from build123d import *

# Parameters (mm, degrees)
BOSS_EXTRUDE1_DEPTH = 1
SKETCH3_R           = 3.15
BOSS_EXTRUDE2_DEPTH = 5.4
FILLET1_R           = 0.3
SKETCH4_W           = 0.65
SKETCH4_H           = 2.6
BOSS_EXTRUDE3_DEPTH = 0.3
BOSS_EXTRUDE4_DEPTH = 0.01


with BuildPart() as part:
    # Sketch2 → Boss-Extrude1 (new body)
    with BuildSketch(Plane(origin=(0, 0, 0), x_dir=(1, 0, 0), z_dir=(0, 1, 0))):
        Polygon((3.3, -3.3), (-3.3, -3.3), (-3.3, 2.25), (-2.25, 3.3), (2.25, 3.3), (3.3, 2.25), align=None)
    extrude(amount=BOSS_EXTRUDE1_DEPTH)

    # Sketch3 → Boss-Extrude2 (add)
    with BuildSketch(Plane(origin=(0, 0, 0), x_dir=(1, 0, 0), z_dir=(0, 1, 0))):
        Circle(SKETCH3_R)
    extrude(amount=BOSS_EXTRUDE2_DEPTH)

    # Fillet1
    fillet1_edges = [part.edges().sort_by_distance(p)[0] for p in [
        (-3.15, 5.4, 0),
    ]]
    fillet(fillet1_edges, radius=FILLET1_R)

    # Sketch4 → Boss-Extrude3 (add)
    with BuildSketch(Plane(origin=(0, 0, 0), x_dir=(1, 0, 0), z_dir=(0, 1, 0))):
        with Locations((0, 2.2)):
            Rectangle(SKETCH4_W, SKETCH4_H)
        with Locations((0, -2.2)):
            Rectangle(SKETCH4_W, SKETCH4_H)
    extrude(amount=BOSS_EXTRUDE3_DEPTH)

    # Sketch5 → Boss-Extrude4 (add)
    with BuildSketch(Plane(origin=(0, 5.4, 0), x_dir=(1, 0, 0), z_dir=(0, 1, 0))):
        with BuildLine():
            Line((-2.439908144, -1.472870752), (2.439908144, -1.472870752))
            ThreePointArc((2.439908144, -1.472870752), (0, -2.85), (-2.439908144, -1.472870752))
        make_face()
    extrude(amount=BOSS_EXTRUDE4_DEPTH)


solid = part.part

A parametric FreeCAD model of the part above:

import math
import FreeCAD as App
import Part
import Sketcher
from FreeCAD import Vector
Q = App.Units.Quantity


def edges_at(feature, points):
    """Names of the edges that pass closest to the given points."""
    edges = feature.Shape.Edges
    near = lambda p: min(range(len(edges)), key=lambda i: edges[i].distToShape(Part.Vertex(*p))[0])
    return sorted({f"Edge{near(p) + 1}" for p in points})


def add_polygon(sketch, points):
    """Adds a closed chain of lines whose ends are joined by coincident constraints."""
    first, n = sketch.GeometryCount, len(points)
    for a, b in zip(points, points[1:] + points[:1]):
        sketch.addGeometry(Part.LineSegment(App.Vector(*a, 0), App.Vector(*b, 0)), False)
    for i in range(n):
        sketch.addConstraint(Sketcher.Constraint("Coincident", first + i, 2, first + (i + 1) % n, 1))

doc = App.newDocument("Part")
body = doc.addObject("PartDesign::Body", "Body")

# Sketch on XZ plane
sketch1 = body.newObject("Sketcher::SketchObject", "Sketch")
sketch1.AttachmentSupport = (doc.getObject("XZ_Plane"), [""])
sketch1.MapMode = "FlatFace"
add_polygon(sketch1, [(-3.3, 3.3), (3.3, 3.3), (3.3, -2.25), (2.25, -3.3), (-2.25, -3.3), (-3.3, -2.25)])  # lines 0-5
sketch1.addConstraint([
    Sketcher.Constraint("Horizontal", 0),
    Sketcher.Constraint("Vertical", 1),
    Sketcher.Constraint("Horizontal", 3),
    Sketcher.Constraint("Vertical", 5),
    Sketcher.Constraint("Symmetric", 1, 2, 4, 2, -2),
    Sketcher.Constraint("Perpendicular", 2, 4),
    Sketcher.Constraint("Equal", 2, 4),
    Sketcher.Constraint("DistanceX", 0, 1, 0, 2, Q("6.6 mm")),
    Sketcher.Constraint("DistanceX", 3, 2, 3, 1, Q("4.5 mm")),
    Sketcher.Constraint("DistanceY", 1, 2, 1, 1, Q("5.55 mm")),
    Sketcher.Constraint("DistanceY", -1, 1, 0, 2, Q("3.3 mm")),
])
pad1 = body.newObject("PartDesign::Pad", "Pad")
pad1.Profile = sketch1
pad1.Length = 1
pad1.Reversed = True

# Sketch on XZ plane
sketch2 = body.newObject("Sketcher::SketchObject", "Sketch001")
sketch2.AttachmentSupport = (doc.getObject("XZ_Plane"), [""])
sketch2.MapMode = "FlatFace"
sketch2.addGeometry(Part.Circle(Vector(0, 0, 0), Vector(0, 0, 1), 3.15), False)
sketch2.addConstraint([
    Sketcher.Constraint("Coincident", 0, 3, -1, 1),
    Sketcher.Constraint("Diameter", 0, Q("6.3 mm")),
])
pad2 = body.newObject("PartDesign::Pad", "Pad001")
pad2.Profile = sketch2
pad2.Length = 5.4
pad2.Reversed = True
doc.recompute()

fillet = body.newObject("PartDesign::Fillet", "Fillet")
fillet.Base = (pad2, edges_at(pad2, [(-3.15, 5.4, 0)]))
fillet.Radius = 0.3

# Sketch on XZ plane
sketch3 = body.newObject("Sketcher::SketchObject", "Sketch002")
sketch3.AttachmentSupport = (doc.getObject("XZ_Plane"), [""])
sketch3.MapMode = "FlatFace"
add_polygon(sketch3, [(-0.325, -3.5), (-0.325, -0.9), (0.325, -0.9), (0.325, -3.5)])  # lines 0-3
add_polygon(sketch3, [(-0.325, 0.9), (-0.325, 3.5), (0.325, 3.5), (0.325, 0.9)])  # lines 4-7
sketch3.addConstraint([
    Sketcher.Constraint("Vertical", 0),
    Sketcher.Constraint("Horizontal", 1),
    Sketcher.Constraint("Vertical", 2),
    Sketcher.Constraint("Horizontal", 3),
    Sketcher.Constraint("Vertical", 4),
    Sketcher.Constraint("Horizontal", 5),
    Sketcher.Constraint("Vertical", 6),
    Sketcher.Constraint("Horizontal", 7),
    Sketcher.Constraint("Symmetric", 2, 2, 4, 2, -1, 1),
    Sketcher.Constraint("Symmetric", 0, 2, 6, 2, -1, 1),
    Sketcher.Constraint("Vertical", 3, 2, 4, 2),
    Sketcher.Constraint("DistanceY", 0, 1, 0, 2, Q("2.6 mm")),
    Sketcher.Constraint("DistanceY", 3, 2, 4, 2, Q("7 mm")),
    Sketcher.Constraint("DistanceX", 1, 1, 1, 2, Q("0.65 mm")),
])
pad3 = body.newObject("PartDesign::Pad", "Pad002")
pad3.Profile = sketch3
pad3.Length = 0.3
pad3.Reversed = True

# Sketch on XZ plane
sketch4 = body.newObject("Sketcher::SketchObject", "Sketch003")
sketch4.AttachmentSupport = (doc.getObject("XZ_Plane"), [""])
sketch4.MapMode = "FlatFace"
sketch4.AttachmentOffset = App.Placement(Vector(0, 0, -5.4), App.Rotation())
sketch4.addGeometry([
    Part.LineSegment(Vector(2.439908, 1.472871, 0), Vector(-2.439908, 1.472871, 0)),
    Part.ArcOfCircle(Part.Circle(Vector(0, 0, 0), Vector(0, 0, 1), 2.85), math.radians(31.117628), math.radians(148.882372)),
], False)
sketch4.addConstraint([
    Sketcher.Constraint("Coincident", 0, 1, 1, 1),
    Sketcher.Constraint("Coincident", 1, 2, 0, 2),
    Sketcher.Constraint("Horizontal", 0),
    Sketcher.Constraint("Coincident", 1, 3, -1, 1),
    Sketcher.Constraint("Radius", 1, Q("2.85 mm")),
    Sketcher.Constraint("DistanceX", 0, 2, 0, 1, Q("4.879816 mm")),
])
pad4 = body.newObject("PartDesign::Pad", "Pad003")
pad4.Profile = sketch4
pad4.Length = 0.01
pad4.Reversed = True

doc.recompute()
